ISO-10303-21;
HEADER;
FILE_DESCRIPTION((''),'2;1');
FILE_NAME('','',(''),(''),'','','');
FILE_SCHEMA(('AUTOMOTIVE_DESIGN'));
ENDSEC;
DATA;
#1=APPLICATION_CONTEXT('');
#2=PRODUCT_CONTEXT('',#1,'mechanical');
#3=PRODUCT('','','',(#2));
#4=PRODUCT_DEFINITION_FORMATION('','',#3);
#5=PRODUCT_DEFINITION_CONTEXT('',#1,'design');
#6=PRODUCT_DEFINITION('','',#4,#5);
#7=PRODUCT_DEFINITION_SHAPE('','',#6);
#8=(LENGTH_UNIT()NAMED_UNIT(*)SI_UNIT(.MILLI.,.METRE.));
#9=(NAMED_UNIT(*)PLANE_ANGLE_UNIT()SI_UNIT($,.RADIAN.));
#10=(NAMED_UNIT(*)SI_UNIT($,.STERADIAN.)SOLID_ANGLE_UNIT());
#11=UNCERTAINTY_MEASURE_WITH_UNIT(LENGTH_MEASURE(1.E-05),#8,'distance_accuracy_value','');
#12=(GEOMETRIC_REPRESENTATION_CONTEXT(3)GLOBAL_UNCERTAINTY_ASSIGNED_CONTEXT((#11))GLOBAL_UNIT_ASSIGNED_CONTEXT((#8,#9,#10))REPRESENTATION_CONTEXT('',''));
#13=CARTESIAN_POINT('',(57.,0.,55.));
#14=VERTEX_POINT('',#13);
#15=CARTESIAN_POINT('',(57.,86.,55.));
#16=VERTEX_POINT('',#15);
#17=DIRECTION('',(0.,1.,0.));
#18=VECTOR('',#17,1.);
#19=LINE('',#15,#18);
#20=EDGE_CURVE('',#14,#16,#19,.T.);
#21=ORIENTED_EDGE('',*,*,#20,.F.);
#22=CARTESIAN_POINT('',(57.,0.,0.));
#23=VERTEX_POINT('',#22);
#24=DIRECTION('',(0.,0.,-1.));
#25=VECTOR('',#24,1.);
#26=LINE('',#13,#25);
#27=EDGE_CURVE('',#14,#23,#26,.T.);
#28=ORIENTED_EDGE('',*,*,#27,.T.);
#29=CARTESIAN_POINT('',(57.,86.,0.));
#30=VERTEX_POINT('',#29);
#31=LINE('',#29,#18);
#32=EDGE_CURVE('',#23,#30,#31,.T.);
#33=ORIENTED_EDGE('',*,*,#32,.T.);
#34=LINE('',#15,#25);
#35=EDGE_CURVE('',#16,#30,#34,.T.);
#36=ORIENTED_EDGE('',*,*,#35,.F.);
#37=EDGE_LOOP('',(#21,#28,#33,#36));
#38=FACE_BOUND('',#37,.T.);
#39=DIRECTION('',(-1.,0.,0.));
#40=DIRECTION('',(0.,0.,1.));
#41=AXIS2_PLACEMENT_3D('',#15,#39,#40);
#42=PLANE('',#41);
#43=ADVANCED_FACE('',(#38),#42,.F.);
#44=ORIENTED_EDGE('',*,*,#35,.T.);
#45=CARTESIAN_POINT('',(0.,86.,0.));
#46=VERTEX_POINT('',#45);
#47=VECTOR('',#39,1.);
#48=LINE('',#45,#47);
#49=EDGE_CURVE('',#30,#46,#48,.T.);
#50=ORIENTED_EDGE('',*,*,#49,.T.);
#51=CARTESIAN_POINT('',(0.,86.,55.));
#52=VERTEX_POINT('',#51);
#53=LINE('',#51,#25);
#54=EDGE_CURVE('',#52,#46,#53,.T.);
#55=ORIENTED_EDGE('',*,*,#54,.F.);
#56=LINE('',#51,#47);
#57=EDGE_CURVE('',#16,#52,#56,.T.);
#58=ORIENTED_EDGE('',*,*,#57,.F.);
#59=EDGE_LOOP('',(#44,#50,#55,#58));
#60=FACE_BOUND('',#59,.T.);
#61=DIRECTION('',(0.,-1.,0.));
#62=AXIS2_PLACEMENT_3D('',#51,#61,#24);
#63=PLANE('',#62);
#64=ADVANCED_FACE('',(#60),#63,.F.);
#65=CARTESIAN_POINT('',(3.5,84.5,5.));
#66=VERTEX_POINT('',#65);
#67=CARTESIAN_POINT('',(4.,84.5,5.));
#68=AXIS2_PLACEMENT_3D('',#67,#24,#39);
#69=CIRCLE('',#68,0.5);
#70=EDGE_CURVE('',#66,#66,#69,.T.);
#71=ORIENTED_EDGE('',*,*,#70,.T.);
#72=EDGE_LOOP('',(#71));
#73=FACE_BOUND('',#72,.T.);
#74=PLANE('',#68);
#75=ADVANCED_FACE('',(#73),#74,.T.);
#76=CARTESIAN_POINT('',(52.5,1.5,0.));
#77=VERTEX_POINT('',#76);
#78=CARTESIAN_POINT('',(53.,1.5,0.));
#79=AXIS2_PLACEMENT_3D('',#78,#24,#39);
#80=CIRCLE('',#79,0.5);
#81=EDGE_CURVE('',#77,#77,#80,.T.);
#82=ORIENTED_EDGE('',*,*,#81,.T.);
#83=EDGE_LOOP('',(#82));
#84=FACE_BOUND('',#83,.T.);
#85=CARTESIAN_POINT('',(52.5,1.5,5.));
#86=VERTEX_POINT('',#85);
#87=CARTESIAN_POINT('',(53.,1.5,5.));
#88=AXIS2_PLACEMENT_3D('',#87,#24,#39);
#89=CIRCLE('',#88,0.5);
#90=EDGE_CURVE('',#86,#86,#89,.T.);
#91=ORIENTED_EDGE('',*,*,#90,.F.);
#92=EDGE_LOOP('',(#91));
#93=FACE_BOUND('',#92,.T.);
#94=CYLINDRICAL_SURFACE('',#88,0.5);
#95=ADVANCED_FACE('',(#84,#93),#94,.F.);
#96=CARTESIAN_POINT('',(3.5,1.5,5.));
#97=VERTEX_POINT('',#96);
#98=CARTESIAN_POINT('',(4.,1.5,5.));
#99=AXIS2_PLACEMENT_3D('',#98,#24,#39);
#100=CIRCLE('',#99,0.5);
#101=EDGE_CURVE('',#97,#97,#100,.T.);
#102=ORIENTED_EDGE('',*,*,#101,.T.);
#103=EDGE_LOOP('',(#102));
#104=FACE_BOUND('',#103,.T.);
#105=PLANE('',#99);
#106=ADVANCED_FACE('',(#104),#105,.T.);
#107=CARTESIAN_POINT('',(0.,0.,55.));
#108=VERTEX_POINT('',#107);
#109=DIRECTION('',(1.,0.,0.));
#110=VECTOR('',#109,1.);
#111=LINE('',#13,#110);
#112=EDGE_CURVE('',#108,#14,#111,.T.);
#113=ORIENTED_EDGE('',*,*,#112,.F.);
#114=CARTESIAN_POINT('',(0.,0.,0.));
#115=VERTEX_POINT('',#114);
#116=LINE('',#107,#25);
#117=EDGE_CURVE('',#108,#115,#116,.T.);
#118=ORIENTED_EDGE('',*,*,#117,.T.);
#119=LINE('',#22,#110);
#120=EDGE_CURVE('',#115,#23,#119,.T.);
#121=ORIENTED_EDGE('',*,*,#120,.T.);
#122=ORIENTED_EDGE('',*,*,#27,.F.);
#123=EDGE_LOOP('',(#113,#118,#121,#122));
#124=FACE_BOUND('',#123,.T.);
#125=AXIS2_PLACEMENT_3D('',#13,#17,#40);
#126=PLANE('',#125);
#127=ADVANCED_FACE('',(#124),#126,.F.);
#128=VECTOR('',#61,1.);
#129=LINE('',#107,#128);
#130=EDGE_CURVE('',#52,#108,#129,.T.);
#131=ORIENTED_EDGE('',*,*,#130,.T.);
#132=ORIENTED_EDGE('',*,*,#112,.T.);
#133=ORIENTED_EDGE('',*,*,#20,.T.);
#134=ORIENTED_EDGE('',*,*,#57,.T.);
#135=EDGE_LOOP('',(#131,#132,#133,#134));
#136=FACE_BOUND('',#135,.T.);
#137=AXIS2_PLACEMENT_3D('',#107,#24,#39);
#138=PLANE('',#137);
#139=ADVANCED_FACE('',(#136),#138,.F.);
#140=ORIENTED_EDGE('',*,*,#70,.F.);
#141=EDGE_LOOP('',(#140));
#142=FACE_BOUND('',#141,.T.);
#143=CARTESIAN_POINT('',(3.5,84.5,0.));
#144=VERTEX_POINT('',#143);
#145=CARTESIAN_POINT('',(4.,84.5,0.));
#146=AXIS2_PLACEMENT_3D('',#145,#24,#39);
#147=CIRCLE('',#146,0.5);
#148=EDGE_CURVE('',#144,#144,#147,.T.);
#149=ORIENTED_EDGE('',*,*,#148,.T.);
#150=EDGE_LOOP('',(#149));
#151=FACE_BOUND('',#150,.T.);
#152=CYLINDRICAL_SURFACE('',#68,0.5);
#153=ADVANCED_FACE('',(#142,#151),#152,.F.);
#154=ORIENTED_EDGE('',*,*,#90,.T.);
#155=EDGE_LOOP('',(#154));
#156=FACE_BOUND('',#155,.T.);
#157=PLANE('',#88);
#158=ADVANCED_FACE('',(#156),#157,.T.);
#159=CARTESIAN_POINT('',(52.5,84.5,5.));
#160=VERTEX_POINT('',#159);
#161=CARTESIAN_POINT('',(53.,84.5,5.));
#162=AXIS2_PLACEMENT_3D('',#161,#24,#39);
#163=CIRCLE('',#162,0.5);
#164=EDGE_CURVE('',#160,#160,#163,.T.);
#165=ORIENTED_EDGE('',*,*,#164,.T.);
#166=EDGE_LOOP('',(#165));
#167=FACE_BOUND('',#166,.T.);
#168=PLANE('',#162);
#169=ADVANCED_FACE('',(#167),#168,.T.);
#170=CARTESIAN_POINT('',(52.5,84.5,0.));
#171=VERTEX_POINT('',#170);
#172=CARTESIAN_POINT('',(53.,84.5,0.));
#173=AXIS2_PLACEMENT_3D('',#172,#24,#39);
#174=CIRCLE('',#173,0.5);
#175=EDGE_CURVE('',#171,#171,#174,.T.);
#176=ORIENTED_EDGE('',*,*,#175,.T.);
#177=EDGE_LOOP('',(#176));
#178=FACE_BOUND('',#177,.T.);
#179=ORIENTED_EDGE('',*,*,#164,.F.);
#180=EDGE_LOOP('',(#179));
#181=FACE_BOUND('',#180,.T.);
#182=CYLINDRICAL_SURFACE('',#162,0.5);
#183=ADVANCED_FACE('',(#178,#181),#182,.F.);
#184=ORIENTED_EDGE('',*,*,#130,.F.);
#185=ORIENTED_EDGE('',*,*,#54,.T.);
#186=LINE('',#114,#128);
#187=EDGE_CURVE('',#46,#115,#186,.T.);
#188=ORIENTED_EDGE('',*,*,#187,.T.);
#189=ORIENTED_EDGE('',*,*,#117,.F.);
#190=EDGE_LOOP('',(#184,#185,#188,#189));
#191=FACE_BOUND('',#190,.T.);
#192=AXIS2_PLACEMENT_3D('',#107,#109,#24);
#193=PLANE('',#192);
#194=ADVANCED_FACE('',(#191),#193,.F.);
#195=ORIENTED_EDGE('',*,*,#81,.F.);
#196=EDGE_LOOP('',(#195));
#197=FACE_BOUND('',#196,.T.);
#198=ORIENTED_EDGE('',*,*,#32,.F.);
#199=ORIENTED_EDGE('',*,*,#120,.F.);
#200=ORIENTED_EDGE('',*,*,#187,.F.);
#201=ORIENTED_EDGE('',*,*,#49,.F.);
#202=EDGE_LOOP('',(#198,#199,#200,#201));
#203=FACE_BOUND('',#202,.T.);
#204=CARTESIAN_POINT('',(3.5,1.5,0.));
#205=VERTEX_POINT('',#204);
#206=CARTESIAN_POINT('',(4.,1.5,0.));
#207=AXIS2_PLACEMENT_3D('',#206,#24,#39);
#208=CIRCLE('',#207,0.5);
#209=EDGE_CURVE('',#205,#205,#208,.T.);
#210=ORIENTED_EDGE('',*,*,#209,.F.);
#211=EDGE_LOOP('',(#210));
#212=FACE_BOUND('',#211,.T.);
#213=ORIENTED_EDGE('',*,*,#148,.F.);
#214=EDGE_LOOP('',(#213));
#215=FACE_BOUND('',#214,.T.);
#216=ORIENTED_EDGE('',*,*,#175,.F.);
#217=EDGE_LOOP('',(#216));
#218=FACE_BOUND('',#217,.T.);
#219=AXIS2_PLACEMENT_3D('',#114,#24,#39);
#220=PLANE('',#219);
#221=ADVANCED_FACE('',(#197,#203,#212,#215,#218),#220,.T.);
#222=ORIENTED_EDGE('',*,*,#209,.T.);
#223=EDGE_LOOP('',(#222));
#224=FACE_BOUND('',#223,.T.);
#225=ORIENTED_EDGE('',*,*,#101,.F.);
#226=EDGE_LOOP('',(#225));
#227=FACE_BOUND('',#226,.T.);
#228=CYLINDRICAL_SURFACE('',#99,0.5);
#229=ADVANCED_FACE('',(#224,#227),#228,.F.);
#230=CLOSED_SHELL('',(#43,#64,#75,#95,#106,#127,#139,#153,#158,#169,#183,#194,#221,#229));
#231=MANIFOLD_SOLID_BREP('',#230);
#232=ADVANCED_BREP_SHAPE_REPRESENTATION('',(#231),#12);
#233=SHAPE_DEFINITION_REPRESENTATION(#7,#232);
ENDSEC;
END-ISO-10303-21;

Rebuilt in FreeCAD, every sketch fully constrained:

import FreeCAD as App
import Part
import Sketcher
Q = App.Units.Quantity


def add_polygon(sketch, points):
    """Adds a closed chain of lines whose ends are joined by coincident constraints."""
    first, n = sketch.GeometryCount, len(points)
    for a, b in zip(points, points[1:] + points[:1]):
        sketch.addGeometry(Part.LineSegment(App.Vector(*a, 0), App.Vector(*b, 0)), False)
    for i in range(n):
        sketch.addConstraint(Sketcher.Constraint("Coincident", first + i, 2, first + (i + 1) % n, 1))

doc = App.newDocument("Part")
body = doc.addObject("PartDesign::Body", "Body")

# Sketch on XY plane
sketch1 = doc.addObject("Sketcher::SketchObject", "Sketch")
body.addObject(sketch1)
sketch1.AttachmentSupport = (doc.XY_Plane, [""])
sketch1.MapMode = "FlatFace"
add_polygon(sketch1, [(0, 86), (0, 0), (57, 0), (57, 86)])  # lines 0-3
sketch1.addConstraint([
    Sketcher.Constraint("Vertical", 0),
    Sketcher.Constraint("Horizontal", 1),
    Sketcher.Constraint("Vertical", 2),
    Sketcher.Constraint("Horizontal", 3),
    Sketcher.Constraint("Coincident", 0, 2, -1, 1),
    Sketcher.Constraint("DistanceX", 1, 1, 1, 2, Q("57 mm")),
    Sketcher.Constraint("DistanceY", 0, 2, 0, 1, Q("86 mm")),
])
pad1 = doc.addObject("PartDesign::Pad", "Pad")
body.addObject(pad1)
pad1.Profile = sketch1
pad1.Length = 55

# Sketch on XY plane
sketch2 = doc.addObject("Sketcher::SketchObject", "Sketch001")
body.addObject(sketch2)
sketch2.AttachmentSupport = (doc.XY_Plane, [""])
sketch2.MapMode = "FlatFace"
sketch2.addGeometry([
    Part.Circle(App.Vector(4, 1.5, 0), App.Vector(0, 0, 1), 0.5),
    Part.Circle(App.Vector(53, 1.5, 0), App.Vector(0, 0, 1), 0.5),
    Part.Circle(App.Vector(4, 84.5, 0), App.Vector(0, 0, 1), 0.5),
    Part.Circle(App.Vector(53, 84.5, 0), App.Vector(0, 0, 1), 0.5),
], False)
sketch2.addConstraint([
    Sketcher.Constraint("Equal", 0, 1),
    Sketcher.Constraint("Equal", 1, 2),
    Sketcher.Constraint("Equal", 2, 3),
    Sketcher.Constraint("Horizontal", 0, 3, 1, 3),
    Sketcher.Constraint("Horizontal", 2, 3, 3, 3),
    Sketcher.Constraint("Vertical", 0, 3, 2, 3),
    Sketcher.Constraint("Vertical", 1, 3, 3, 3),
    Sketcher.Constraint("Diameter", 0, Q("1 mm")),
    Sketcher.Constraint("DistanceX", -1, 1, 0, 3, Q("4 mm")),
    Sketcher.Constraint("DistanceX", -1, 1, 1, 3, Q("53 mm")),
    Sketcher.Constraint("DistanceY", 0, 3, 2, 3, Q("83 mm")),
    Sketcher.Constraint("DistanceY", -1, 1, 0, 3, Q("1.5 mm")),
])
pocket1 = doc.addObject("PartDesign::Pocket", "Pocket")
body.addObject(pocket1)
pocket1.Profile = sketch2
pocket1.Length = 5
pocket1.Reversed = True

doc.recompute()
